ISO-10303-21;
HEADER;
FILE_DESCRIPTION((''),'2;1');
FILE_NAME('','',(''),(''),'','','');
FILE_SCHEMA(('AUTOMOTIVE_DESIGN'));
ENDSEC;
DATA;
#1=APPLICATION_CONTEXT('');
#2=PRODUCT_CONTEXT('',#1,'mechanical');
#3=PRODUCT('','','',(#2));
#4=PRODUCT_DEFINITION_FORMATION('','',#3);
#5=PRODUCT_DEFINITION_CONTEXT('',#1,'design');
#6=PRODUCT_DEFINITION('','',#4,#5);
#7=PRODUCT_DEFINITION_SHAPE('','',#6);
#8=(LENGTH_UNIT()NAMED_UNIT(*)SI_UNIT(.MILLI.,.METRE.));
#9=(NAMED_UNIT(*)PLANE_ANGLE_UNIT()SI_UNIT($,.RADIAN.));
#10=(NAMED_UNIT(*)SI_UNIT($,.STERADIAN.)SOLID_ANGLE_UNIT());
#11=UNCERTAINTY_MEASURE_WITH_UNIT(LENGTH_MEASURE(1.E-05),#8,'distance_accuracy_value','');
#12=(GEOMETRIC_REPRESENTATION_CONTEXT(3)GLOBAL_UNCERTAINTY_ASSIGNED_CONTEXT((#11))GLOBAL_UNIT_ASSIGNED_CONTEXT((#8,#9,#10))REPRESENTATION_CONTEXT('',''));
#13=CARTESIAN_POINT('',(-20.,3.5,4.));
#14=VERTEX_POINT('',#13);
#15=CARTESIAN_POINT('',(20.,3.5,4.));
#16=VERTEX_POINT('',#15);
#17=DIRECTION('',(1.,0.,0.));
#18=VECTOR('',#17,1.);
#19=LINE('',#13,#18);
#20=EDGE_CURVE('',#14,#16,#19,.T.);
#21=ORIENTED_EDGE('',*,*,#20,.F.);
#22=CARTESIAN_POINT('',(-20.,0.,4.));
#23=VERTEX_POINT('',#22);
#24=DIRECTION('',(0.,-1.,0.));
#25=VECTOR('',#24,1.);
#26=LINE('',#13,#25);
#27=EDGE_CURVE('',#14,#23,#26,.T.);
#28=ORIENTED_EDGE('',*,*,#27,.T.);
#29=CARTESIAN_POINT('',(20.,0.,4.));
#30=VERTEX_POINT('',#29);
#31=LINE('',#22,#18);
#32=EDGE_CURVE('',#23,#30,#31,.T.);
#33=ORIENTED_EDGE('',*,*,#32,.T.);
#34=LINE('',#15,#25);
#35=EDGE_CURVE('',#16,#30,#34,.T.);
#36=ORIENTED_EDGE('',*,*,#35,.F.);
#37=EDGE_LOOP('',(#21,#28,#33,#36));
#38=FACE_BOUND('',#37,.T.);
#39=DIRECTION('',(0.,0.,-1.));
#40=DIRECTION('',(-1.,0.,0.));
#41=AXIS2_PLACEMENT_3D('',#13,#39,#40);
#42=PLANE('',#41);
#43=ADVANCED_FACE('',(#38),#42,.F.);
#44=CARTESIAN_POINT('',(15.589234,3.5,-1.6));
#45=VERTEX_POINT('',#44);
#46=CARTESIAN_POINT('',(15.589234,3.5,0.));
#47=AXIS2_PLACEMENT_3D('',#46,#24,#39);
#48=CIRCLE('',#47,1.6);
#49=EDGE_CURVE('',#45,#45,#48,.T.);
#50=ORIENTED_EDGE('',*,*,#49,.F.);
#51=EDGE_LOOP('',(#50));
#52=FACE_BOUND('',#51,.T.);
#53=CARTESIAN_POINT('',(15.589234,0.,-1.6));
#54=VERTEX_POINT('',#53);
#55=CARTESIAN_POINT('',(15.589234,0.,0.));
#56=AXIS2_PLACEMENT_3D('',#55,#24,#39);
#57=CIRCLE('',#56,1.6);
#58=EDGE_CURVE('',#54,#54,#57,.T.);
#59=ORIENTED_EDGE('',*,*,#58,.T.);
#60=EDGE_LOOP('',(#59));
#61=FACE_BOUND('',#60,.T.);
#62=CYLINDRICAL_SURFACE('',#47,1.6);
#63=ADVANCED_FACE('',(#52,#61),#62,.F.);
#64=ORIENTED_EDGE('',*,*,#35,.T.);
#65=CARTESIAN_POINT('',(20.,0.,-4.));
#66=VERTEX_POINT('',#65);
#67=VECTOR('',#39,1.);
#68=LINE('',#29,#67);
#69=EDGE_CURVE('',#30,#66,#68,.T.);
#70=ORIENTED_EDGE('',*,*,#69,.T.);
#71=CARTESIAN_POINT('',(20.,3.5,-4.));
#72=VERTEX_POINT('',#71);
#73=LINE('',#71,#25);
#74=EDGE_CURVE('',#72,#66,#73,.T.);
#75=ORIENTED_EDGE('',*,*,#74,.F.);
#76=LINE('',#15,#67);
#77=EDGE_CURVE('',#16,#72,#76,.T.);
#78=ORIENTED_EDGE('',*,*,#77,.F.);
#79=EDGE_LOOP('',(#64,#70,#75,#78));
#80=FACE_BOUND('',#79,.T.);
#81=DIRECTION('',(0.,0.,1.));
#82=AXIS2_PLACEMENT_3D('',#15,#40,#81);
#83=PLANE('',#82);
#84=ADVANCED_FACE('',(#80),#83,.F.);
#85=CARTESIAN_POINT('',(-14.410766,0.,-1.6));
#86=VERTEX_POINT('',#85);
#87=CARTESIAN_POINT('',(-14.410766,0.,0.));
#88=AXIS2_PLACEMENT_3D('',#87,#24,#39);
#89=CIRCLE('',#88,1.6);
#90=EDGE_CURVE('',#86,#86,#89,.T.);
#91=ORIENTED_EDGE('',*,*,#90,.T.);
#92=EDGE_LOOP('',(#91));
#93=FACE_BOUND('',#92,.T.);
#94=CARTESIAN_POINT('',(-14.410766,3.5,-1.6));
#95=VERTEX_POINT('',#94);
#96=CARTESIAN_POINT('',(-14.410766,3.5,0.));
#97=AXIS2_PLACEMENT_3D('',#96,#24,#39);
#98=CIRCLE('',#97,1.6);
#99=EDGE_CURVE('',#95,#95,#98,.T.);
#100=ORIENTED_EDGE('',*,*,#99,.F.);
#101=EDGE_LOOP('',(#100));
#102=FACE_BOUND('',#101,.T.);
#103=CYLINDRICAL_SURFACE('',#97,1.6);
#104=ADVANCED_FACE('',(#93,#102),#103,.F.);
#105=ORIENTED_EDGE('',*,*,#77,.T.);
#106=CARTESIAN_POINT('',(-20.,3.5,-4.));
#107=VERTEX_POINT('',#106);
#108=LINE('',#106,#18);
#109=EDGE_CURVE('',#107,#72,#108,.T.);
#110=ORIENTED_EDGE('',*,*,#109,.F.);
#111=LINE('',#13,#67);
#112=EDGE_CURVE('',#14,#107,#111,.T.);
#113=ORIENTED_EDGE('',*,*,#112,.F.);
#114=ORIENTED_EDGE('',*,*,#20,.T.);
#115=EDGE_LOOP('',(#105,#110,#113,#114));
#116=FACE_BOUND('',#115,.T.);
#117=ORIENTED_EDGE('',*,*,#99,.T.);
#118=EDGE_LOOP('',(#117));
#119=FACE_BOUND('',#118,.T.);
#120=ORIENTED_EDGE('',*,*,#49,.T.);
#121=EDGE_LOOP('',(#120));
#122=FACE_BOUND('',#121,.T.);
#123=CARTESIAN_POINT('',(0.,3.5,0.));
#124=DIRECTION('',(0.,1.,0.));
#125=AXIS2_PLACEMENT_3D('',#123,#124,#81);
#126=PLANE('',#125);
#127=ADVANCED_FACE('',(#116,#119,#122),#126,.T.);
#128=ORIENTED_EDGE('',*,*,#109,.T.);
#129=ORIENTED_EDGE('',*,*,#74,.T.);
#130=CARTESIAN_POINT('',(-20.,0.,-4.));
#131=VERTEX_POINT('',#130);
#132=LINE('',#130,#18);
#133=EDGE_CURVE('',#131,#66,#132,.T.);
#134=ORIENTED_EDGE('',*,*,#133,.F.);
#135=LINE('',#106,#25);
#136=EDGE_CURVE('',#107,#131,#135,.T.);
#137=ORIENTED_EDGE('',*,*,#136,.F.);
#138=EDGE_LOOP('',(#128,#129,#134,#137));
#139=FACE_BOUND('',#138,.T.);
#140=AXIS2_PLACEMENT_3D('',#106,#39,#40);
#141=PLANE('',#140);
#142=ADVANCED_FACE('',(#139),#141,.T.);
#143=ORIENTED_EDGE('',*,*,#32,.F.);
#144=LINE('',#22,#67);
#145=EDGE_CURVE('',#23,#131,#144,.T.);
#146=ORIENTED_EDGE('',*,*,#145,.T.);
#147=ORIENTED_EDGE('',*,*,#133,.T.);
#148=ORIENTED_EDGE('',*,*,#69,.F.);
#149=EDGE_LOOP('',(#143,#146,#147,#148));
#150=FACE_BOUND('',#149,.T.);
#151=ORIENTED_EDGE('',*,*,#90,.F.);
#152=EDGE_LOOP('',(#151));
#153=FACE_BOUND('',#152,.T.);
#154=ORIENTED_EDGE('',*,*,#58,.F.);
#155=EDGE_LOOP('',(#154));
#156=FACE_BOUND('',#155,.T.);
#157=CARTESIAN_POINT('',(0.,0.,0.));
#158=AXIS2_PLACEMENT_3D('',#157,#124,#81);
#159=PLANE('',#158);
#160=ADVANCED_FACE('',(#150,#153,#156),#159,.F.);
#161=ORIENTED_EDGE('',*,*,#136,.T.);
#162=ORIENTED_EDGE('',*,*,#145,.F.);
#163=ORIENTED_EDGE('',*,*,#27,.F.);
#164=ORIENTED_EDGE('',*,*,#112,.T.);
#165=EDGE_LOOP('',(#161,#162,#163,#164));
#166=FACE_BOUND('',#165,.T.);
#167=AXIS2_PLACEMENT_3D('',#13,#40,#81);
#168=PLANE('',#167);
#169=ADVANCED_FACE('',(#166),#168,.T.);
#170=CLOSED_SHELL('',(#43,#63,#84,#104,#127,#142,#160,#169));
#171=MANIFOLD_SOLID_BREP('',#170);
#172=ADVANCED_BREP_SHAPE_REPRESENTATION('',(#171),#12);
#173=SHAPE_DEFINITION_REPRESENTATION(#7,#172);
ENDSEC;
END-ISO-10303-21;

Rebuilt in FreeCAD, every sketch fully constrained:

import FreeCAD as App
import Part
import Sketcher
from FreeCAD import Vector

doc = App.newDocument("Part")
body = doc.addObject("PartDesign::Body", "Body")

# Sketch on XZ plane
sketch1 = doc.addObject("Sketcher::SketchObject", "Sketch")
body.addObject(sketch1)
sketch1.AttachmentSupport = (doc.XZ_Plane, [""])
sketch1.MapMode = "FlatFace"
sketch1.addGeometry(Part.LineSegment(Vector(-20, -4, 0), Vector(-20, 4, 0)), False)
sketch1.addGeometry(Part.LineSegment(Vector(-20, 4, 0), Vector(20, 4, 0)), False)
sketch1.addGeometry(Part.LineSegment(Vector(20, 4, 0), Vector(20, -4, 0)), False)
sketch1.addGeometry(Part.LineSegment(Vector(20, -4, 0), Vector(-20, -4, 0)), False)
sketch1.addConstraint(Sketcher.Constraint("Coincident", 0, 2, 1, 1))
sketch1.addConstraint(Sketcher.Constraint("Coincident", 1, 2, 2, 1))
sketch1.addConstraint(Sketcher.Constraint("Coincident", 2, 2, 3, 1))
sketch1.addConstraint(Sketcher.Constraint("Coincident", 3, 2, 0, 1))
sketch1.addConstraint(Sketcher.Constraint("Vertical", 0))
sketch1.addConstraint(Sketcher.Constraint("Horizontal", 1))
sketch1.addConstraint(Sketcher.Constraint("Vertical", 2))
sketch1.addConstraint(Sketcher.Constraint("Horizontal", 3))
sketch1.addConstraint(Sketcher.Constraint("Symmetric", 0, 2, 2, 2, -1, 1))
sketch1.addConstraint(Sketcher.Constraint("DistanceX", 1, 1, 1, 2, 40.0))
sketch1.addConstraint(Sketcher.Constraint("DistanceY", 0, 1, 0, 2, 8.0))
pad1 = doc.addObject("PartDesign::Pad", "Pad")
body.addObject(pad1)
pad1.Profile = sketch1
pad1.Length = 3.5
pad1.Reversed = True

# Sketch on XZ plane
sketch2 = doc.addObject("Sketcher::SketchObject", "Sketch001")
body.addObject(sketch2)
sketch2.AttachmentSupport = (doc.XZ_Plane, [""])
sketch2.MapMode = "FlatFace"
sketch2.addGeometry(Part.Circle(Vector(-14.4, 0, 0), Vector(0, 0, 1), 1.6), False)
sketch2.addGeometry(Part.Circle(Vector(15.6, 0, 0), Vector(0, 0, 1), 1.6), False)
sketch2.addConstraint(Sketcher.Constraint("Equal", 0, 1))
sketch2.addConstraint(Sketcher.Constraint("PointOnObject", 0, 3, -1))
sketch2.addConstraint(Sketcher.Constraint("PointOnObject", 1, 3, -1))
sketch2.addConstraint(Sketcher.Constraint("Diameter", 0, 3.2))
sketch2.addConstraint(Sketcher.Constraint("DistanceX", 0, 3, 1, 3, 30.0))
sketch2.addConstraint(Sketcher.Constraint("DistanceX", 0, 3, -1, 1, 14.410766))
pocket1 = doc.addObject("PartDesign::Pocket", "Pocket")
body.addObject(pocket1)
pocket1.Profile = sketch2
pocket1.Length = 3.5

doc.recompute()
